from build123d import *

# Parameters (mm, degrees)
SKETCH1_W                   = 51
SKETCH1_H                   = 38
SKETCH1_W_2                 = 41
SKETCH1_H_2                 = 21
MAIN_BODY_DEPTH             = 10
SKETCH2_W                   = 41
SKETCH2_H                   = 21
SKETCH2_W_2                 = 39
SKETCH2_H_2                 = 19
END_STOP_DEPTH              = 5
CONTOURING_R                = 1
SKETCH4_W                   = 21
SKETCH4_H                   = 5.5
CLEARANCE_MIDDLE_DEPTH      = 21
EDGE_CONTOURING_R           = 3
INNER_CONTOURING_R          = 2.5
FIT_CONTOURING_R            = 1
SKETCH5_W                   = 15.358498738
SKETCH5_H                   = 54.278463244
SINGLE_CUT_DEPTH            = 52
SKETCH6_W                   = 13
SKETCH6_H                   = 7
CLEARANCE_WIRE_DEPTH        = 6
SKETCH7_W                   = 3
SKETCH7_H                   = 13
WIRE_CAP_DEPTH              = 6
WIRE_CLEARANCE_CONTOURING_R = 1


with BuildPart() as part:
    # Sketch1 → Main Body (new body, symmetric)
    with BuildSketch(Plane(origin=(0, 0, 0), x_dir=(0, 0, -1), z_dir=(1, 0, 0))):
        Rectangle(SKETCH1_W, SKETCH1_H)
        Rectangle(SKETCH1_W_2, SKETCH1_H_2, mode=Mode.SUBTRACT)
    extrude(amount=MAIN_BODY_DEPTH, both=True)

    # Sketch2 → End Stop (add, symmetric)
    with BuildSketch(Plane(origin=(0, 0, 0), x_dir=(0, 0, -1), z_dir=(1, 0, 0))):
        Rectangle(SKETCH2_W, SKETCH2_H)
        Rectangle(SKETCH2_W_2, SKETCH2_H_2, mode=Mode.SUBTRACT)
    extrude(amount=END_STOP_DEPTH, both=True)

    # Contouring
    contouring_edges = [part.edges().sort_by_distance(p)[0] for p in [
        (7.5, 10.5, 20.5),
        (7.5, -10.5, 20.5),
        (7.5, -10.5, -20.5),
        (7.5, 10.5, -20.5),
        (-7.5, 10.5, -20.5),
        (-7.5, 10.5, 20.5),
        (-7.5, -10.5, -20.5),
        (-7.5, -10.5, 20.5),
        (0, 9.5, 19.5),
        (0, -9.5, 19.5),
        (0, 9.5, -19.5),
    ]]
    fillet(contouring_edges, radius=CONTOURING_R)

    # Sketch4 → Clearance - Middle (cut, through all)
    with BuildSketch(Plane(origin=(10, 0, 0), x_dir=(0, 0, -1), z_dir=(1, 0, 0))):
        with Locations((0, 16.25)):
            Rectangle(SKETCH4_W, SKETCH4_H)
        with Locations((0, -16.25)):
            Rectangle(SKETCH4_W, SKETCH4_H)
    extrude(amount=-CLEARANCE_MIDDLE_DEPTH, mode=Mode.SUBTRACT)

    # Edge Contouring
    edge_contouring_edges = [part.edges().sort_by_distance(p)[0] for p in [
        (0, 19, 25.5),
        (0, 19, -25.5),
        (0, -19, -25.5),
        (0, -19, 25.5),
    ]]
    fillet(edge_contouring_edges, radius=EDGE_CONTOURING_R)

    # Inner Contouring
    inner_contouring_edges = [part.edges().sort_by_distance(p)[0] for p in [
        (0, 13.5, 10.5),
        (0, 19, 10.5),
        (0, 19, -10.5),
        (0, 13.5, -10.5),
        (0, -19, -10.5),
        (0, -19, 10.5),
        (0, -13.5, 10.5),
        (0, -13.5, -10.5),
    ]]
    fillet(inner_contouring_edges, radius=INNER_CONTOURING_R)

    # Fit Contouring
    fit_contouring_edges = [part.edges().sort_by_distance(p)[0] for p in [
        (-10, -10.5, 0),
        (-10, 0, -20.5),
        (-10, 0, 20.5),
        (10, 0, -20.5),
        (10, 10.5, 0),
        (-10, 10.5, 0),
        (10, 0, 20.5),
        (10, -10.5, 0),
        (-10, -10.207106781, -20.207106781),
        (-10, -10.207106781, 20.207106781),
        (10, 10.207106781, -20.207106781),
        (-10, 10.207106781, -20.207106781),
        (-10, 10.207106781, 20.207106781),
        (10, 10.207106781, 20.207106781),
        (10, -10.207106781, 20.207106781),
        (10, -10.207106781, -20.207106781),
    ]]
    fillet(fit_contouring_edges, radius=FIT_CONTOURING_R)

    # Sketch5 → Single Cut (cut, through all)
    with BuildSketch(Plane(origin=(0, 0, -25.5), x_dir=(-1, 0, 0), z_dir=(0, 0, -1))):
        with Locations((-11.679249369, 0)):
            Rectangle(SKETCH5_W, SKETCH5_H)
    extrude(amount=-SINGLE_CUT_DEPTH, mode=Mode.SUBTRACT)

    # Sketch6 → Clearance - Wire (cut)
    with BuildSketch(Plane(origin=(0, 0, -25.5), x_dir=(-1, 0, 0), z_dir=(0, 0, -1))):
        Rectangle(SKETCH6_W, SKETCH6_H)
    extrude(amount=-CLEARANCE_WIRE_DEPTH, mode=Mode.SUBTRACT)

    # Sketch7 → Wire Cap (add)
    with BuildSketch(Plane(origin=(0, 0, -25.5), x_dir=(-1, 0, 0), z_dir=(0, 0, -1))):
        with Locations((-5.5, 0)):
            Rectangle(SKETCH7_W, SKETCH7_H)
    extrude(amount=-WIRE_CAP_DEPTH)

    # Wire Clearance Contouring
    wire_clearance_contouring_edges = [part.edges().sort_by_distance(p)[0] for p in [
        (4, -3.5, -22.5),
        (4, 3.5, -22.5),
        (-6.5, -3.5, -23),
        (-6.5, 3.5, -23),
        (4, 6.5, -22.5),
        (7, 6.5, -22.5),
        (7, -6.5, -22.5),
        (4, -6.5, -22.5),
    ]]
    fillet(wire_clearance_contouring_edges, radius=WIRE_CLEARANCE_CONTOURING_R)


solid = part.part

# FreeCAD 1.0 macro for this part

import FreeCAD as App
import Part
import Sketcher

V = App.Vector
Q = App.Units.Quantity


def edges_at(feature, points):
    """Names of the edges that pass closest to the given points."""
    edges = feature.Shape.Edges
    near = lambda p: min(range(len(edges)), key=lambda i: edges[i].distToShape(Part.Vertex(*p))[0])
    return sorted({f"Edge{near(p) + 1}" for p in points})


def add_polygon(sketch, points):
    """Adds a closed chain of lines whose ends are joined by coincident constraints."""
    first, n = sketch.GeometryCount, len(points)
    for a, b in zip(points, points[1:] + points[:1]):
        sketch.addGeometry(Part.LineSegment(App.Vector(*a, 0), App.Vector(*b, 0)), False)
    for i in range(n):
        sketch.addConstraint(Sketcher.Constraint("Coincident", first + i, 2, first + (i + 1) % n, 1))

doc = App.newDocument("Part")
params = doc.addObject("Spreadsheet::Sheet", "Params")
for row, (alias, value) in enumerate([
    ("sketch1_width", "38 mm"),
    ("sketch1_width2", "21 mm"),
    ("sketch1_height", "51 mm"),
    ("sketch1_height2", "41 mm"),
    ("pad1_length", "20 mm"),
    ("sketch2_width", "21 mm"),
    ("sketch2_width2", "19 mm"),
    ("sketch2_height", "41 mm"),
    ("sketch2_height2", "39 mm"),
    ("pad2_length", "10 mm"),
    ("fillet_radius", "1 mm"),
    ("sketch3_height", "21 mm"),
    ("sketch3_width", "5.5 mm"),
    ("fillet2_radius", "3 mm"),
    ("fillet3_radius", "2.5 mm"),
    ("fillet4_radius", "1 mm"),
    ("sketch5_width", "13 mm"),
    ("sketch5_height", "7 mm"),
    ("pocket3_length", "6 mm"),
    ("sketch6_width", "3 mm"),
    ("sketch6_height", "13 mm"),
    ("pad3_length", "6 mm"),
    ("fillet5_radius", "1 mm"),
], start=1):
    params.set(f"A{row}", alias)
    params.set(f"B{row}", "=" + value)
    params.setAlias(f"B{row}", alias)

body = doc.addObject("PartDesign::Body", "Body")

# Sketch on YZ plane
sketch1 = body.newObject("Sketcher::SketchObject", "Sketch")
sketch1.AttachmentSupport = (doc.getObject("YZ_Plane"), [""])
sketch1.MapMode = "FlatFace"
add_polygon(sketch1, [(19, 26), (-19, 26), (-19, -26), (19, -26)])  # lines 0-3
add_polygon(sketch1, [(-10, -20), (-10, 20), (10, 20), (10, -20)])  # lines 4-7
sketch1.addConstraint(Sketcher.Constraint("Horizontal", 0))
sketch1.addConstraint(Sketcher.Constraint("Vertical", 1))
sketch1.addConstraint(Sketcher.Constraint("Horizontal", 2))
sketch1.addConstraint(Sketcher.Constraint("Vertical", 3))
sketch1.addConstraint(Sketcher.Constraint("Vertical", 4))
sketch1.addConstraint(Sketcher.Constraint("Horizontal", 5))
sketch1.addConstraint(Sketcher.Constraint("Vertical", 6))
sketch1.addConstraint(Sketcher.Constraint("Horizontal", 7))
sketch1.addConstraint(Sketcher.Constraint("Symmetric", 0, 2, 2, 2, -1, 1))
sketch1.addConstraint(Sketcher.Constraint("Symmetric", 4, 2, 6, 2, -1, 1))
sketch1.addConstraint(Sketcher.Constraint("DistanceX", 0, 2, 0, 1, Q("38 mm")))
sketch1.addConstraint(Sketcher.Constraint("DistanceX", 5, 1, 5, 2, Q("21 mm")))
sketch1.addConstraint(Sketcher.Constraint("DistanceY", 1, 2, 1, 1, Q("51 mm")))
sketch1.addConstraint(Sketcher.Constraint("DistanceY", 4, 1, 4, 2, Q("41 mm")))
sketch1.setExpression("Constraints[18]", "Params.sketch1_width")
sketch1.setExpression("Constraints[19]", "Params.sketch1_width2")
sketch1.setExpression("Constraints[20]", "Params.sketch1_height")
sketch1.setExpression("Constraints[21]", "Params.sketch1_height2")
pad1 = body.newObject("PartDesign::Pad", "Pad")
pad1.Profile = sketch1
pad1.setExpression("Length", "Params.pad1_length")
pad1.Midplane = True

# Sketch on YZ plane
sketch2 = body.newObject("Sketcher::SketchObject", "Sketch001")
sketch2.AttachmentSupport = (doc.getObject("YZ_Plane"), [""])
sketch2.MapMode = "FlatFace"
add_polygon(sketch2, [(10, 20), (-10, 20), (-10, -20), (10, -20)])  # lines 0-3
add_polygon(sketch2, [(-10, -20), (-10, 20), (10, 20), (10, -20)])  # lines 4-7
sketch2.addConstraint(Sketcher.Constraint("Horizontal", 0))
sketch2.addConstraint(Sketcher.Constraint("Vertical", 1))
sketch2.addConstraint(Sketcher.Constraint("Horizontal", 2))
sketch2.addConstraint(Sketcher.Constraint("Vertical", 3))
sketch2.addConstraint(Sketcher.Constraint("Vertical", 4))
sketch2.addConstraint(Sketcher.Constraint("Horizontal", 5))
sketch2.addConstraint(Sketcher.Constraint("Vertical", 6))
sketch2.addConstraint(Sketcher.Constraint("Horizontal", 7))
sketch2.addConstraint(Sketcher.Constraint("Symmetric", 0, 2, 2, 2, -1, 1))
sketch2.addConstraint(Sketcher.Constraint("Symmetric", 4, 2, 6, 2, -1, 1))
sketch2.addConstraint(Sketcher.Constraint("DistanceX", 0, 2, 0, 1, Q("21 mm")))
sketch2.addConstraint(Sketcher.Constraint("DistanceX", 5, 1, 5, 2, Q("19 mm")))
sketch2.addConstraint(Sketcher.Constraint("DistanceY", 1, 2, 1, 1, Q("41 mm")))
sketch2.addConstraint(Sketcher.Constraint("DistanceY", 4, 1, 4, 2, Q("39 mm")))
sketch2.setExpression("Constraints[18]", "Params.sketch2_width")
sketch2.setExpression("Constraints[19]", "Params.sketch2_width2")
sketch2.setExpression("Constraints[20]", "Params.sketch2_height")
sketch2.setExpression("Constraints[21]", "Params.sketch2_height2")
pad2 = body.newObject("PartDesign::Pad", "Pad001")
pad2.Profile = sketch2
pad2.setExpression("Length", "Params.pad2_length")
pad2.Midplane = True
doc.recompute()

fillet = body.newObject("PartDesign::Fillet", "Fillet")
fillet.Base = (pad2, edges_at(pad2, [
    (7.5, 10.5, 20.5),
    (7.5, -10.5, 20.5),
    (7.5, -10.5, -20.5),
    (7.5, 10.5, -20.5),
    (-7.5, 10.5, -20.5),
    (-7.5, 10.5, 20.5),
    (-7.5, -10.5, -20.5),
    (-7.5, -10.5, 20.5),
    (0, 9.5, 19.5),
    (0, -9.5, 19.5),
    (0, 9.5, -19.5),
]))
fillet.setExpression("Radius", "Params.fillet_radius")

# Sketch on YZ plane
sketch3 = body.newObject("Sketcher::SketchObject", "Sketch002")
sketch3.AttachmentSupport = (doc.getObject("YZ_Plane"), [""])
sketch3.MapMode = "FlatFace"
sketch3.AttachmentOffset = App.Placement(V(0, 0, 10), App.Rotation())
add_polygon(sketch3, [(19, 10), (14, 10), (14, -10), (19, -10)])  # lines 0-3
add_polygon(sketch3, [(-14, 10), (-19, 10), (-19, -10), (-14, -10)])  # lines 4-7
sketch3.addConstraint(Sketcher.Constraint("Horizontal", 0))
sketch3.addConstraint(Sketcher.Constraint("Vertical", 1))
sketch3.addConstraint(Sketcher.Constraint("Horizontal", 2))
sketch3.addConstraint(Sketcher.Constraint("Vertical", 3))
sketch3.addConstraint(Sketcher.Constraint("Horizontal", 4))
sketch3.addConstraint(Sketcher.Constraint("Vertical", 5))
sketch3.addConstraint(Sketcher.Constraint("Horizontal", 6))
sketch3.addConstraint(Sketcher.Constraint("Vertical", 7))
sketch3.addConstraint(Sketcher.Constraint("Symmetric", 2, 2, 4, 2, -1, 1))
sketch3.addConstraint(Sketcher.Constraint("Symmetric", 0, 2, 6, 2, -1, 1))
sketch3.addConstraint(Sketcher.Constraint("Horizontal", 3, 2, 4, 2))
sketch3.addConstraint(Sketcher.Constraint("DistanceY", 1, 2, 1, 1, Q("21 mm")))
sketch3.addConstraint(Sketcher.Constraint("DistanceX", 0, 2, 0, 1, Q("5.5 mm")))
sketch3.addConstraint(Sketcher.Constraint("DistanceX", -1, 1, 2, 2, Q("19 mm")))
sketch3.setExpression("Constraints[19]", "Params.sketch3_height")
sketch3.setExpression("Constraints[20]", "Params.sketch3_width")
pocket1 = body.newObject("PartDesign::Pocket", "Pocket")
pocket1.Profile = sketch3
pocket1.Type = "ThroughAll"
doc.recompute()

fillet2 = body.newObject("PartDesign::Fillet", "Fillet001")
fillet2.Base = (pocket1, edges_at(pocket1, [
    (0, 19, 25.5),
    (0, 19, -25.5),
    (0, -19, -25.5),
    (0, -19, 25.5),
]))
fillet2.setExpression("Radius", "Params.fillet2_radius")
doc.recompute()

fillet3 = body.newObject("PartDesign::Fillet", "Fillet002")
fillet3.Base = (fillet2, edges_at(fillet2, [
    (0, 13.5, 10.5),
    (0, 19, 10.5),
    (0, 19, -10.5),
    (0, 13.5, -10.5),
    (0, -19, -10.5),
    (0, -19, 10.5),
    (0, -13.5, 10.5),
    (0, -13.5, -10.5),
]))
fillet3.setExpression("Radius", "Params.fillet3_radius")
doc.recompute()

fillet4 = body.newObject("PartDesign::Fillet", "Fillet003")
fillet4.Base = (fillet3, edges_at(fillet3, [
    (-10, -10.5, 0),
    (-10, 0, -20.5),
    (-10, 0, 20.5),
    (10, 0, -20.5),
    (10, 10.5, 0),
    (-10, 10.5, 0),
    (10, 0, 20.5),
    (10, -10.5, 0),
    (-10, -10.207, -20.207),
    (-10, -10.207, 20.207),
    (10, 10.207, -20.207),
    (-10, 10.207, -20.207),
    (-10, 10.207, 20.207),
    (10, 10.207, 20.207),
    (10, -10.207, 20.207),
    (10, -10.207, -20.207),
]))
fillet4.setExpression("Radius", "Params.fillet4_radius")

# Sketch on XY plane
sketch4 = body.newObject("Sketcher::SketchObject", "Sketch003")
sketch4.AttachmentSupport = (doc.getObject("XY_Plane"), [""])
sketch4.MapMode = "FlatFace"
sketch4.AttachmentOffset = App.Placement(V(0, 0, -25.5), App.Rotation())
add_polygon(sketch4, [(19, 27), (19, -27), (4, -27), (4, 27)])  # lines 0-3
sketch4.addConstraint(Sketcher.Constraint("Vertical", 0))
sketch4.addConstraint(Sketcher.Constraint("Horizontal", 1))
sketch4.addConstraint(Sketcher.Constraint("Vertical", 2))
sketch4.addConstraint(Sketcher.Constraint("Horizontal", 3))
sketch4.addConstraint(Sketcher.Constraint("DistanceX", -1, 1, 1, 2, Q("4 mm")))
sketch4.addConstraint(Sketcher.Constraint("DistanceX", 1, 2, 1, 1, Q("15.358499 mm")))
sketch4.addConstraint(Sketcher.Constraint("DistanceY", 0, 2, 0, 1, Q("54.278463 mm")))
sketch4.addConstraint(Sketcher.Constraint("DistanceY", 0, 2, -1, 1, Q("27.139232 mm")))
pocket2 = body.newObject("PartDesign::Pocket", "Pocket001")
pocket2.Profile = sketch4
pocket2.Type = "ThroughAll"
pocket2.Reversed = True

# Sketch on XY plane
sketch5 = body.newObject("Sketcher::SketchObject", "Sketch004")
sketch5.AttachmentSupport = (doc.getObject("XY_Plane"), [""])
sketch5.MapMode = "FlatFace"
sketch5.AttachmentOffset = App.Placement(V(0, 0, -25.5), App.Rotation())
add_polygon(sketch5, [(6, 4), (6, -4), (-6, -4), (-6, 4)])  # lines 0-3
sketch5.addConstraint(Sketcher.Constraint("Vertical", 0))
sketch5.addConstraint(Sketcher.Constraint("Horizontal", 1))
sketch5.addConstraint(Sketcher.Constraint("Vertical", 2))
sketch5.addConstraint(Sketcher.Constraint("Horizontal", 3))
sketch5.addConstraint(Sketcher.Constraint("Symmetric", 0, 2, 2, 2, -1, 1))
sketch5.addConstraint(Sketcher.Constraint("DistanceX", 1, 2, 1, 1, Q("13 mm")))
sketch5.addConstraint(Sketcher.Constraint("DistanceY", 0, 2, 0, 1, Q("7 mm")))
sketch5.setExpression("Constraints[9]", "Params.sketch5_width")
sketch5.setExpression("Constraints[10]", "Params.sketch5_height")
pocket3 = body.newObject("PartDesign::Pocket", "Pocket002")
pocket3.Profile = sketch5
pocket3.setExpression("Length", "Params.pocket3_length")
pocket3.Reversed = True

# Sketch on XY plane
sketch6 = body.newObject("Sketcher::SketchObject", "Sketch005")
sketch6.AttachmentSupport = (doc.getObject("XY_Plane"), [""])
sketch6.MapMode = "FlatFace"
sketch6.AttachmentOffset = App.Placement(V(0, 0, -25.5), App.Rotation())
add_polygon(sketch6, [(7, 6.5), (7, -6.5), (4, -6.5), (4, 6.5)])  # lines 0-3
sketch6.addConstraint(Sketcher.Constraint("Vertical", 0))
sketch6.addConstraint(Sketcher.Constraint("Horizontal", 1))
sketch6.addConstraint(Sketcher.Constraint("Vertical", 2))
sketch6.addConstraint(Sketcher.Constraint("Horizontal", 3))
sketch6.addConstraint(Sketcher.Constraint("DistanceX", 1, 2, 1, 1, Q("3 mm")))
sketch6.addConstraint(Sketcher.Constraint("DistanceY", 0, 2, 0, 1, Q("13 mm")))
sketch6.addConstraint(Sketcher.Constraint("DistanceX", -1, 1, 0, 2, Q("7 mm")))
sketch6.addConstraint(Sketcher.Constraint("DistanceY", 0, 2, -1, 1, Q("6.5 mm")))
sketch6.setExpression("Constraints[8]", "Params.sketch6_width")
sketch6.setExpression("Constraints[9]", "Params.sketch6_height")
pad3 = body.newObject("PartDesign::Pad", "Pad002")
pad3.Profile = sketch6
pad3.setExpression("Length", "Params.pad3_length")
doc.recompute()

fillet5 = body.newObject("PartDesign::Fillet", "Fillet004")
fillet5.Base = (pad3, edges_at(pad3, [
    (4, -3.5, -22.5),
    (4, 3.5, -22.5),
    (-6.5, -3.5, -23),
    (-6.5, 3.5, -23),
    (4, 6.5, -22.5),
    (7, 6.5, -22.5),
    (7, -6.5, -22.5),
    (4, -6.5, -22.5),
]))
fillet5.setExpression("Radius", "Params.fillet5_radius")

doc.recompute()
